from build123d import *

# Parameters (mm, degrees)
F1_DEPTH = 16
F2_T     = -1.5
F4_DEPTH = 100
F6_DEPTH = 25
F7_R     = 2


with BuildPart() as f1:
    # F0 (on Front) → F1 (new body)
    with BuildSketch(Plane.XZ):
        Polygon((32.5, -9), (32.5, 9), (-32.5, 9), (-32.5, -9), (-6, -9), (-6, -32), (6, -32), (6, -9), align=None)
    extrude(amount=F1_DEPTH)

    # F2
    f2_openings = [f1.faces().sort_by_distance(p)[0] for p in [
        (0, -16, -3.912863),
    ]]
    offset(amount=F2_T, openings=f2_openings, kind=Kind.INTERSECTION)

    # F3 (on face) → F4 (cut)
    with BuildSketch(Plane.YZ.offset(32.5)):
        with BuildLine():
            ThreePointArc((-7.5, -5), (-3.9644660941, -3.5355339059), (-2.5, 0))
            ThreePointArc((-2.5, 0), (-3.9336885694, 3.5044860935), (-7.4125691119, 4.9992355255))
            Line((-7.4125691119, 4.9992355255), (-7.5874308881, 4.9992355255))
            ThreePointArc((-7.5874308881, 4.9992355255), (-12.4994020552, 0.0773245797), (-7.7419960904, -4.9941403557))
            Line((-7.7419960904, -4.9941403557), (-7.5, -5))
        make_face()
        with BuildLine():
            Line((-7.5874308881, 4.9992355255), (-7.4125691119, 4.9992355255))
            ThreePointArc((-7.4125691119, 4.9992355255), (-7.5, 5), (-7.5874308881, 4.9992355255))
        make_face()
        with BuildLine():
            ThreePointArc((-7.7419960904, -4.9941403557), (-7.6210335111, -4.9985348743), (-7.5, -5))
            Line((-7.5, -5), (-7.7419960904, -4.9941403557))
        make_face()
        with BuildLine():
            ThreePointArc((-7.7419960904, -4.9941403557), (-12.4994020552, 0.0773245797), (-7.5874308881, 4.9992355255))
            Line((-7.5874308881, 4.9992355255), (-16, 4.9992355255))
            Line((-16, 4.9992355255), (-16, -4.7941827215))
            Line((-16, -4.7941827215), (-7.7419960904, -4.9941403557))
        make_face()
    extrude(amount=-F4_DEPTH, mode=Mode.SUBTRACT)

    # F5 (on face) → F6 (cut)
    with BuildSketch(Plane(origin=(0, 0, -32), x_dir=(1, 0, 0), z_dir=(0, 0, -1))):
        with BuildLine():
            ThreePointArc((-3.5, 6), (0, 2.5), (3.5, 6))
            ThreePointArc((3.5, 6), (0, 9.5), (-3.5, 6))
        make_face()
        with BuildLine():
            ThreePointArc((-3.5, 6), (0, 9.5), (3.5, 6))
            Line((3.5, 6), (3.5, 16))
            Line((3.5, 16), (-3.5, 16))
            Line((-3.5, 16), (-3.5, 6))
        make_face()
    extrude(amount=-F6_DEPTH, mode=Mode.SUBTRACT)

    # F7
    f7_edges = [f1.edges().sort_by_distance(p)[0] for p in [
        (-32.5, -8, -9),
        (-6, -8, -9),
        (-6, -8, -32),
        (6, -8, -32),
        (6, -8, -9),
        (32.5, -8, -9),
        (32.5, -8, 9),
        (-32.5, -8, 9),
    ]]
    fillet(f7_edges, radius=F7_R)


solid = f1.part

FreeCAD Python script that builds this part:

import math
import FreeCAD as App
import Part
import Sketcher
from FreeCAD import Vector


def edges_at(feature, points):
    """Names of the edges that pass closest to the given points."""
    edges = feature.Shape.Edges
    near = lambda p: min(range(len(edges)), key=lambda i: edges[i].distToShape(Part.Vertex(*p))[0])
    return sorted({f"Edge{near(p) + 1}" for p in points})


def faces_at(feature, points):
    """Names of the faces that lie closest to the given points."""
    faces = feature.Shape.Faces
    near = lambda p: min(range(len(faces)), key=lambda i: faces[i].distToShape(Part.Vertex(*p))[0])
    return sorted({f"Face{near(p) + 1}" for p in points})


def add_polygon(sketch, points):
    """Adds a closed chain of lines whose ends are joined by coincident constraints."""
    first, n = sketch.GeometryCount, len(points)
    for a, b in zip(points, points[1:] + points[:1]):
        sketch.addGeometry(Part.LineSegment(App.Vector(*a, 0), App.Vector(*b, 0)), False)
    for i in range(n):
        sketch.addConstraint(Sketcher.Constraint("Coincident", first + i, 2, first + (i + 1) % n, 1))

doc = App.newDocument("Part")
body = doc.addObject("PartDesign::Body", "Body")

sketch1 = doc.addObject("Sketcher::SketchObject", "Sketch")
body.addObject(sketch1)
sketch1.AttachmentSupport = (doc.XZ_Plane, [""])
sketch1.MapMode = "FlatFace"
add_polygon(sketch1, [(32.5, -9), (32.5, 9), (-32.5, 9), (-32.5, -9), (-6, -9), (-6, -32), (6, -32), (6, -9)])
sketch1.addConstraint(Sketcher.Constraint("Vertical", 0))
sketch1.addConstraint(Sketcher.Constraint("Horizontal", 1))
sketch1.addConstraint(Sketcher.Constraint("Vertical", 2))
sketch1.addConstraint(Sketcher.Constraint("Horizontal", 3))
sketch1.addConstraint(Sketcher.Constraint("Vertical", 4))
sketch1.addConstraint(Sketcher.Constraint("Horizontal", 5))
sketch1.addConstraint(Sketcher.Constraint("Vertical", 6))
sketch1.addConstraint(Sketcher.Constraint("Horizontal", 7))
sketch1.addConstraint(Sketcher.Constraint("Symmetric", 0, 2, 2, 2, -1, 1))
sketch1.addConstraint(Sketcher.Constraint("Symmetric", 3, 2, 6, 2, -2))
sketch1.addConstraint(Sketcher.Constraint("DistanceX", 1, 2, 1, 1, 65.0))
sketch1.addConstraint(Sketcher.Constraint("DistanceX", 5, 1, 5, 2, 12.0))
sketch1.addConstraint(Sketcher.Constraint("DistanceY", 0, 1, 0, 2, 18.0))
sketch1.addConstraint(Sketcher.Constraint("DistanceY", 4, 2, 4, 1, 23.0))
pad1 = doc.addObject("PartDesign::Pad", "Pad")
body.addObject(pad1)
pad1.Profile = sketch1
pad1.Length = 16
doc.recompute()

thickness = doc.addObject("PartDesign::Thickness", "Thickness")
body.addObject(thickness)
thickness.Base = (pad1, faces_at(pad1, [(0, -16, -11.5)]))
thickness.Value = 1.5
thickness.Reversed = True
thickness.Join = "Intersection"

sketch2 = doc.addObject("Sketcher::SketchObject", "Sketch001")
body.addObject(sketch2)
sketch2.AttachmentSupport = (doc.YZ_Plane, [""])
sketch2.MapMode = "FlatFace"
sketch2.AttachmentOffset = App.Placement(Vector(0, 0, 32.5), App.Rotation())
sketch2.addGeometry(Part.ArcOfCircle(Part.Circle(Vector(-7.5, 0, 0), Vector(0, 0, 1), 5), math.radians(-90), math.radians(0)), False)
sketch2.addGeometry(Part.ArcOfCircle(Part.Circle(Vector(-7.5, 0, 0), Vector(0, 0, 1), 5), math.radians(0), math.radians(88.998065)), False)
sketch2.addGeometry(Part.ArcOfCircle(Part.Circle(Vector(-7.5, 0, 0), Vector(0, 0, 1), 5), math.radians(88.998065), math.radians(91.001935)), False)
sketch2.addGeometry(Part.LineSegment(Vector(-7.587431, 4.999236, 0), Vector(-16, 4.999236, 0)), False)
sketch2.addGeometry(Part.LineSegment(Vector(-16, 4.999236, 0), Vector(-16, -4.794183, 0)), False)
sketch2.addGeometry(Part.LineSegment(Vector(-16, -4.794183, 0), Vector(-7.741996, -4.99414, 0)), False)
sketch2.addGeometry(Part.ArcOfCircle(Part.Circle(Vector(-7.5, 0, 0), Vector(0, 0, 1), 5), math.radians(-92.774155), math.radians(-90)), False)
sketch2.addConstraint(Sketcher.Constraint("Tangent", 0, 2, 1, 1))
sketch2.addConstraint(Sketcher.Constraint("Tangent", 1, 2, 2, 1))
sketch2.addConstraint(Sketcher.Constraint("Coincident", 2, 2, 3, 1))
sketch2.addConstraint(Sketcher.Constraint("Coincident", 3, 2, 4, 1))
sketch2.addConstraint(Sketcher.Constraint("Coincident", 4, 2, 5, 1))
sketch2.addConstraint(Sketcher.Constraint("Coincident", 5, 2, 6, 1))
sketch2.addConstraint(Sketcher.Constraint("Tangent", 6, 2, 0, 1))
sketch2.addConstraint(Sketcher.Constraint("Horizontal", 3))
sketch2.addConstraint(Sketcher.Constraint("Vertical", 4))
sketch2.addConstraint(Sketcher.Constraint("Coincident", 2, 3, 0, 3))
sketch2.addConstraint(Sketcher.Constraint("Equal", 2, 6))
sketch2.addConstraint(Sketcher.Constraint("PointOnObject", 0, 3, -1))
sketch2.addConstraint(Sketcher.Constraint("PointOnObject", 0, 2, -1))
sketch2.addConstraint(Sketcher.Constraint("Horizontal", 1, 2, 2, 2))
sketch2.addConstraint(Sketcher.Constraint("Vertical", 2, 3, 6, 2))
sketch2.addConstraint(Sketcher.Constraint("Radius", 0, 5.0))
sketch2.addConstraint(Sketcher.Constraint("DistanceX", 3, 2, -1, 1, 16.0))
sketch2.addConstraint(Sketcher.Constraint("DistanceX", 0, 3, -1, 1, 7.5))
sketch2.addConstraint(Sketcher.Constraint("DistanceX", 3, 2, 3, 1, 8.412569))
sketch2.addConstraint(Sketcher.Constraint("DistanceY", 4, 2, 4, 1, 9.793418))
sketch2.addConstraint(Sketcher.Constraint("DistanceY", 5, 2, -1, 1, 4.99414))
pocket1 = doc.addObject("PartDesign::Pocket", "Pocket")
body.addObject(pocket1)
pocket1.Profile = sketch2
pocket1.Length = 100

sketch3 = doc.addObject("Sketcher::SketchObject", "Sketch002")
body.addObject(sketch3)
sketch3.AttachmentSupport = (doc.XY_Plane, [""])
sketch3.MapMode = "FlatFace"
sketch3.AttachmentOffset = App.Placement(Vector(0, 0, -32), App.Rotation())
sketch3.addGeometry(Part.ArcOfCircle(Part.Circle(Vector(0, -6, 0), Vector(0, 0, 1), 3.5), math.radians(0), math.radians(180)), False)
sketch3.addGeometry(Part.LineSegment(Vector(3.5, -6, 0), Vector(3.5, -16, 0)), False)
sketch3.addGeometry(Part.LineSegment(Vector(3.5, -16, 0), Vector(-3.5, -16, 0)), False)
sketch3.addGeometry(Part.LineSegment(Vector(-3.5, -16, 0), Vector(-3.5, -6, 0)), False)
sketch3.addConstraint(Sketcher.Constraint("Tangent", 0, 1, 1, 1))
sketch3.addConstraint(Sketcher.Constraint("Coincident", 1, 2, 2, 1))
sketch3.addConstraint(Sketcher.Constraint("Coincident", 2, 2, 3, 1))
sketch3.addConstraint(Sketcher.Constraint("Tangent", 3, 2, 0, 2))
sketch3.addConstraint(Sketcher.Constraint("Vertical", 1))
sketch3.addConstraint(Sketcher.Constraint("Horizontal", 2))
sketch3.addConstraint(Sketcher.Constraint("Vertical", 3))
sketch3.addConstraint(Sketcher.Constraint("PointOnObject", 0, 3, -2))
sketch3.addConstraint(Sketcher.Constraint("Radius", 0, 3.5))
sketch3.addConstraint(Sketcher.Constraint("DistanceY", 1, 2, 1, 1, 10.0))
sketch3.addConstraint(Sketcher.Constraint("DistanceY", 0, 3, -1, 1, 6.0))
pocket2 = doc.addObject("PartDesign::Pocket", "Pocket001")
body.addObject(pocket2)
pocket2.Profile = sketch3
pocket2.Length = 25
pocket2.Reversed = True
doc.recompute()

fillet = doc.addObject("PartDesign::Fillet", "Fillet")
body.addObject(fillet)
fillet.Base = (pocket2, edges_at(pocket2, [
    (-32.5, -8, -9),
    (-6, -8, -9),
    (-6, -8, -32),
    (6, -8, -32),
    (6, -8, -9),
    (32.5, -8, -9),
    (32.5, -8, 9),
    (-32.5, -8, 9),
]))
fillet.Radius = 2

doc.recompute()
